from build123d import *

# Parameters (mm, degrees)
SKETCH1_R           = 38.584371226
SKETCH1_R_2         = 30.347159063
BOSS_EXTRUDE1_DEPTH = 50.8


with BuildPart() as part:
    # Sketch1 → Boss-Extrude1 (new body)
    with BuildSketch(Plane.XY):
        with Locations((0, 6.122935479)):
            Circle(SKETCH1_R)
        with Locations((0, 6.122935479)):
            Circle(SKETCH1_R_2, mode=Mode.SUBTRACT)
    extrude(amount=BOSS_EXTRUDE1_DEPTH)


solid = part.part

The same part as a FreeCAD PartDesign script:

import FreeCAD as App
import Part
import Sketcher
Q = App.Units.Quantity

doc = App.newDocument("Part")
body = doc.addObject("PartDesign::Body", "Body")

sketch1 = body.newObject("Sketcher::SketchObject", "Sketch")
sketch1.AttachmentSupport = (doc.getObject("XY_Plane"), [""])
sketch1.MapMode = "FlatFace"
sketch1.addGeometry([
    Part.Circle(App.Vector(0, 6, 0), App.Vector(0, 0, 1), 39),
    Part.Circle(App.Vector(0, 6, 0), App.Vector(0, 0, 1), 30),
], False)
sketch1.addConstraint([
    Sketcher.Constraint("Coincident", 1, 3, 0, 3),
    Sketcher.Constraint("PointOnObject", 0, 3, -2),
    Sketcher.Constraint("Diameter", 1, 60.694318),
    Sketcher.Constraint("Diameter", 0, 77.168742),
    Sketcher.Constraint("DistanceY", -1, 1, 0, 3, 6.122935),
])
pad1 = body.newObject("PartDesign::Pad", "Pad")
pad1.Profile = sketch1
pad1.Length = Q("2 in")

doc.recompute()
